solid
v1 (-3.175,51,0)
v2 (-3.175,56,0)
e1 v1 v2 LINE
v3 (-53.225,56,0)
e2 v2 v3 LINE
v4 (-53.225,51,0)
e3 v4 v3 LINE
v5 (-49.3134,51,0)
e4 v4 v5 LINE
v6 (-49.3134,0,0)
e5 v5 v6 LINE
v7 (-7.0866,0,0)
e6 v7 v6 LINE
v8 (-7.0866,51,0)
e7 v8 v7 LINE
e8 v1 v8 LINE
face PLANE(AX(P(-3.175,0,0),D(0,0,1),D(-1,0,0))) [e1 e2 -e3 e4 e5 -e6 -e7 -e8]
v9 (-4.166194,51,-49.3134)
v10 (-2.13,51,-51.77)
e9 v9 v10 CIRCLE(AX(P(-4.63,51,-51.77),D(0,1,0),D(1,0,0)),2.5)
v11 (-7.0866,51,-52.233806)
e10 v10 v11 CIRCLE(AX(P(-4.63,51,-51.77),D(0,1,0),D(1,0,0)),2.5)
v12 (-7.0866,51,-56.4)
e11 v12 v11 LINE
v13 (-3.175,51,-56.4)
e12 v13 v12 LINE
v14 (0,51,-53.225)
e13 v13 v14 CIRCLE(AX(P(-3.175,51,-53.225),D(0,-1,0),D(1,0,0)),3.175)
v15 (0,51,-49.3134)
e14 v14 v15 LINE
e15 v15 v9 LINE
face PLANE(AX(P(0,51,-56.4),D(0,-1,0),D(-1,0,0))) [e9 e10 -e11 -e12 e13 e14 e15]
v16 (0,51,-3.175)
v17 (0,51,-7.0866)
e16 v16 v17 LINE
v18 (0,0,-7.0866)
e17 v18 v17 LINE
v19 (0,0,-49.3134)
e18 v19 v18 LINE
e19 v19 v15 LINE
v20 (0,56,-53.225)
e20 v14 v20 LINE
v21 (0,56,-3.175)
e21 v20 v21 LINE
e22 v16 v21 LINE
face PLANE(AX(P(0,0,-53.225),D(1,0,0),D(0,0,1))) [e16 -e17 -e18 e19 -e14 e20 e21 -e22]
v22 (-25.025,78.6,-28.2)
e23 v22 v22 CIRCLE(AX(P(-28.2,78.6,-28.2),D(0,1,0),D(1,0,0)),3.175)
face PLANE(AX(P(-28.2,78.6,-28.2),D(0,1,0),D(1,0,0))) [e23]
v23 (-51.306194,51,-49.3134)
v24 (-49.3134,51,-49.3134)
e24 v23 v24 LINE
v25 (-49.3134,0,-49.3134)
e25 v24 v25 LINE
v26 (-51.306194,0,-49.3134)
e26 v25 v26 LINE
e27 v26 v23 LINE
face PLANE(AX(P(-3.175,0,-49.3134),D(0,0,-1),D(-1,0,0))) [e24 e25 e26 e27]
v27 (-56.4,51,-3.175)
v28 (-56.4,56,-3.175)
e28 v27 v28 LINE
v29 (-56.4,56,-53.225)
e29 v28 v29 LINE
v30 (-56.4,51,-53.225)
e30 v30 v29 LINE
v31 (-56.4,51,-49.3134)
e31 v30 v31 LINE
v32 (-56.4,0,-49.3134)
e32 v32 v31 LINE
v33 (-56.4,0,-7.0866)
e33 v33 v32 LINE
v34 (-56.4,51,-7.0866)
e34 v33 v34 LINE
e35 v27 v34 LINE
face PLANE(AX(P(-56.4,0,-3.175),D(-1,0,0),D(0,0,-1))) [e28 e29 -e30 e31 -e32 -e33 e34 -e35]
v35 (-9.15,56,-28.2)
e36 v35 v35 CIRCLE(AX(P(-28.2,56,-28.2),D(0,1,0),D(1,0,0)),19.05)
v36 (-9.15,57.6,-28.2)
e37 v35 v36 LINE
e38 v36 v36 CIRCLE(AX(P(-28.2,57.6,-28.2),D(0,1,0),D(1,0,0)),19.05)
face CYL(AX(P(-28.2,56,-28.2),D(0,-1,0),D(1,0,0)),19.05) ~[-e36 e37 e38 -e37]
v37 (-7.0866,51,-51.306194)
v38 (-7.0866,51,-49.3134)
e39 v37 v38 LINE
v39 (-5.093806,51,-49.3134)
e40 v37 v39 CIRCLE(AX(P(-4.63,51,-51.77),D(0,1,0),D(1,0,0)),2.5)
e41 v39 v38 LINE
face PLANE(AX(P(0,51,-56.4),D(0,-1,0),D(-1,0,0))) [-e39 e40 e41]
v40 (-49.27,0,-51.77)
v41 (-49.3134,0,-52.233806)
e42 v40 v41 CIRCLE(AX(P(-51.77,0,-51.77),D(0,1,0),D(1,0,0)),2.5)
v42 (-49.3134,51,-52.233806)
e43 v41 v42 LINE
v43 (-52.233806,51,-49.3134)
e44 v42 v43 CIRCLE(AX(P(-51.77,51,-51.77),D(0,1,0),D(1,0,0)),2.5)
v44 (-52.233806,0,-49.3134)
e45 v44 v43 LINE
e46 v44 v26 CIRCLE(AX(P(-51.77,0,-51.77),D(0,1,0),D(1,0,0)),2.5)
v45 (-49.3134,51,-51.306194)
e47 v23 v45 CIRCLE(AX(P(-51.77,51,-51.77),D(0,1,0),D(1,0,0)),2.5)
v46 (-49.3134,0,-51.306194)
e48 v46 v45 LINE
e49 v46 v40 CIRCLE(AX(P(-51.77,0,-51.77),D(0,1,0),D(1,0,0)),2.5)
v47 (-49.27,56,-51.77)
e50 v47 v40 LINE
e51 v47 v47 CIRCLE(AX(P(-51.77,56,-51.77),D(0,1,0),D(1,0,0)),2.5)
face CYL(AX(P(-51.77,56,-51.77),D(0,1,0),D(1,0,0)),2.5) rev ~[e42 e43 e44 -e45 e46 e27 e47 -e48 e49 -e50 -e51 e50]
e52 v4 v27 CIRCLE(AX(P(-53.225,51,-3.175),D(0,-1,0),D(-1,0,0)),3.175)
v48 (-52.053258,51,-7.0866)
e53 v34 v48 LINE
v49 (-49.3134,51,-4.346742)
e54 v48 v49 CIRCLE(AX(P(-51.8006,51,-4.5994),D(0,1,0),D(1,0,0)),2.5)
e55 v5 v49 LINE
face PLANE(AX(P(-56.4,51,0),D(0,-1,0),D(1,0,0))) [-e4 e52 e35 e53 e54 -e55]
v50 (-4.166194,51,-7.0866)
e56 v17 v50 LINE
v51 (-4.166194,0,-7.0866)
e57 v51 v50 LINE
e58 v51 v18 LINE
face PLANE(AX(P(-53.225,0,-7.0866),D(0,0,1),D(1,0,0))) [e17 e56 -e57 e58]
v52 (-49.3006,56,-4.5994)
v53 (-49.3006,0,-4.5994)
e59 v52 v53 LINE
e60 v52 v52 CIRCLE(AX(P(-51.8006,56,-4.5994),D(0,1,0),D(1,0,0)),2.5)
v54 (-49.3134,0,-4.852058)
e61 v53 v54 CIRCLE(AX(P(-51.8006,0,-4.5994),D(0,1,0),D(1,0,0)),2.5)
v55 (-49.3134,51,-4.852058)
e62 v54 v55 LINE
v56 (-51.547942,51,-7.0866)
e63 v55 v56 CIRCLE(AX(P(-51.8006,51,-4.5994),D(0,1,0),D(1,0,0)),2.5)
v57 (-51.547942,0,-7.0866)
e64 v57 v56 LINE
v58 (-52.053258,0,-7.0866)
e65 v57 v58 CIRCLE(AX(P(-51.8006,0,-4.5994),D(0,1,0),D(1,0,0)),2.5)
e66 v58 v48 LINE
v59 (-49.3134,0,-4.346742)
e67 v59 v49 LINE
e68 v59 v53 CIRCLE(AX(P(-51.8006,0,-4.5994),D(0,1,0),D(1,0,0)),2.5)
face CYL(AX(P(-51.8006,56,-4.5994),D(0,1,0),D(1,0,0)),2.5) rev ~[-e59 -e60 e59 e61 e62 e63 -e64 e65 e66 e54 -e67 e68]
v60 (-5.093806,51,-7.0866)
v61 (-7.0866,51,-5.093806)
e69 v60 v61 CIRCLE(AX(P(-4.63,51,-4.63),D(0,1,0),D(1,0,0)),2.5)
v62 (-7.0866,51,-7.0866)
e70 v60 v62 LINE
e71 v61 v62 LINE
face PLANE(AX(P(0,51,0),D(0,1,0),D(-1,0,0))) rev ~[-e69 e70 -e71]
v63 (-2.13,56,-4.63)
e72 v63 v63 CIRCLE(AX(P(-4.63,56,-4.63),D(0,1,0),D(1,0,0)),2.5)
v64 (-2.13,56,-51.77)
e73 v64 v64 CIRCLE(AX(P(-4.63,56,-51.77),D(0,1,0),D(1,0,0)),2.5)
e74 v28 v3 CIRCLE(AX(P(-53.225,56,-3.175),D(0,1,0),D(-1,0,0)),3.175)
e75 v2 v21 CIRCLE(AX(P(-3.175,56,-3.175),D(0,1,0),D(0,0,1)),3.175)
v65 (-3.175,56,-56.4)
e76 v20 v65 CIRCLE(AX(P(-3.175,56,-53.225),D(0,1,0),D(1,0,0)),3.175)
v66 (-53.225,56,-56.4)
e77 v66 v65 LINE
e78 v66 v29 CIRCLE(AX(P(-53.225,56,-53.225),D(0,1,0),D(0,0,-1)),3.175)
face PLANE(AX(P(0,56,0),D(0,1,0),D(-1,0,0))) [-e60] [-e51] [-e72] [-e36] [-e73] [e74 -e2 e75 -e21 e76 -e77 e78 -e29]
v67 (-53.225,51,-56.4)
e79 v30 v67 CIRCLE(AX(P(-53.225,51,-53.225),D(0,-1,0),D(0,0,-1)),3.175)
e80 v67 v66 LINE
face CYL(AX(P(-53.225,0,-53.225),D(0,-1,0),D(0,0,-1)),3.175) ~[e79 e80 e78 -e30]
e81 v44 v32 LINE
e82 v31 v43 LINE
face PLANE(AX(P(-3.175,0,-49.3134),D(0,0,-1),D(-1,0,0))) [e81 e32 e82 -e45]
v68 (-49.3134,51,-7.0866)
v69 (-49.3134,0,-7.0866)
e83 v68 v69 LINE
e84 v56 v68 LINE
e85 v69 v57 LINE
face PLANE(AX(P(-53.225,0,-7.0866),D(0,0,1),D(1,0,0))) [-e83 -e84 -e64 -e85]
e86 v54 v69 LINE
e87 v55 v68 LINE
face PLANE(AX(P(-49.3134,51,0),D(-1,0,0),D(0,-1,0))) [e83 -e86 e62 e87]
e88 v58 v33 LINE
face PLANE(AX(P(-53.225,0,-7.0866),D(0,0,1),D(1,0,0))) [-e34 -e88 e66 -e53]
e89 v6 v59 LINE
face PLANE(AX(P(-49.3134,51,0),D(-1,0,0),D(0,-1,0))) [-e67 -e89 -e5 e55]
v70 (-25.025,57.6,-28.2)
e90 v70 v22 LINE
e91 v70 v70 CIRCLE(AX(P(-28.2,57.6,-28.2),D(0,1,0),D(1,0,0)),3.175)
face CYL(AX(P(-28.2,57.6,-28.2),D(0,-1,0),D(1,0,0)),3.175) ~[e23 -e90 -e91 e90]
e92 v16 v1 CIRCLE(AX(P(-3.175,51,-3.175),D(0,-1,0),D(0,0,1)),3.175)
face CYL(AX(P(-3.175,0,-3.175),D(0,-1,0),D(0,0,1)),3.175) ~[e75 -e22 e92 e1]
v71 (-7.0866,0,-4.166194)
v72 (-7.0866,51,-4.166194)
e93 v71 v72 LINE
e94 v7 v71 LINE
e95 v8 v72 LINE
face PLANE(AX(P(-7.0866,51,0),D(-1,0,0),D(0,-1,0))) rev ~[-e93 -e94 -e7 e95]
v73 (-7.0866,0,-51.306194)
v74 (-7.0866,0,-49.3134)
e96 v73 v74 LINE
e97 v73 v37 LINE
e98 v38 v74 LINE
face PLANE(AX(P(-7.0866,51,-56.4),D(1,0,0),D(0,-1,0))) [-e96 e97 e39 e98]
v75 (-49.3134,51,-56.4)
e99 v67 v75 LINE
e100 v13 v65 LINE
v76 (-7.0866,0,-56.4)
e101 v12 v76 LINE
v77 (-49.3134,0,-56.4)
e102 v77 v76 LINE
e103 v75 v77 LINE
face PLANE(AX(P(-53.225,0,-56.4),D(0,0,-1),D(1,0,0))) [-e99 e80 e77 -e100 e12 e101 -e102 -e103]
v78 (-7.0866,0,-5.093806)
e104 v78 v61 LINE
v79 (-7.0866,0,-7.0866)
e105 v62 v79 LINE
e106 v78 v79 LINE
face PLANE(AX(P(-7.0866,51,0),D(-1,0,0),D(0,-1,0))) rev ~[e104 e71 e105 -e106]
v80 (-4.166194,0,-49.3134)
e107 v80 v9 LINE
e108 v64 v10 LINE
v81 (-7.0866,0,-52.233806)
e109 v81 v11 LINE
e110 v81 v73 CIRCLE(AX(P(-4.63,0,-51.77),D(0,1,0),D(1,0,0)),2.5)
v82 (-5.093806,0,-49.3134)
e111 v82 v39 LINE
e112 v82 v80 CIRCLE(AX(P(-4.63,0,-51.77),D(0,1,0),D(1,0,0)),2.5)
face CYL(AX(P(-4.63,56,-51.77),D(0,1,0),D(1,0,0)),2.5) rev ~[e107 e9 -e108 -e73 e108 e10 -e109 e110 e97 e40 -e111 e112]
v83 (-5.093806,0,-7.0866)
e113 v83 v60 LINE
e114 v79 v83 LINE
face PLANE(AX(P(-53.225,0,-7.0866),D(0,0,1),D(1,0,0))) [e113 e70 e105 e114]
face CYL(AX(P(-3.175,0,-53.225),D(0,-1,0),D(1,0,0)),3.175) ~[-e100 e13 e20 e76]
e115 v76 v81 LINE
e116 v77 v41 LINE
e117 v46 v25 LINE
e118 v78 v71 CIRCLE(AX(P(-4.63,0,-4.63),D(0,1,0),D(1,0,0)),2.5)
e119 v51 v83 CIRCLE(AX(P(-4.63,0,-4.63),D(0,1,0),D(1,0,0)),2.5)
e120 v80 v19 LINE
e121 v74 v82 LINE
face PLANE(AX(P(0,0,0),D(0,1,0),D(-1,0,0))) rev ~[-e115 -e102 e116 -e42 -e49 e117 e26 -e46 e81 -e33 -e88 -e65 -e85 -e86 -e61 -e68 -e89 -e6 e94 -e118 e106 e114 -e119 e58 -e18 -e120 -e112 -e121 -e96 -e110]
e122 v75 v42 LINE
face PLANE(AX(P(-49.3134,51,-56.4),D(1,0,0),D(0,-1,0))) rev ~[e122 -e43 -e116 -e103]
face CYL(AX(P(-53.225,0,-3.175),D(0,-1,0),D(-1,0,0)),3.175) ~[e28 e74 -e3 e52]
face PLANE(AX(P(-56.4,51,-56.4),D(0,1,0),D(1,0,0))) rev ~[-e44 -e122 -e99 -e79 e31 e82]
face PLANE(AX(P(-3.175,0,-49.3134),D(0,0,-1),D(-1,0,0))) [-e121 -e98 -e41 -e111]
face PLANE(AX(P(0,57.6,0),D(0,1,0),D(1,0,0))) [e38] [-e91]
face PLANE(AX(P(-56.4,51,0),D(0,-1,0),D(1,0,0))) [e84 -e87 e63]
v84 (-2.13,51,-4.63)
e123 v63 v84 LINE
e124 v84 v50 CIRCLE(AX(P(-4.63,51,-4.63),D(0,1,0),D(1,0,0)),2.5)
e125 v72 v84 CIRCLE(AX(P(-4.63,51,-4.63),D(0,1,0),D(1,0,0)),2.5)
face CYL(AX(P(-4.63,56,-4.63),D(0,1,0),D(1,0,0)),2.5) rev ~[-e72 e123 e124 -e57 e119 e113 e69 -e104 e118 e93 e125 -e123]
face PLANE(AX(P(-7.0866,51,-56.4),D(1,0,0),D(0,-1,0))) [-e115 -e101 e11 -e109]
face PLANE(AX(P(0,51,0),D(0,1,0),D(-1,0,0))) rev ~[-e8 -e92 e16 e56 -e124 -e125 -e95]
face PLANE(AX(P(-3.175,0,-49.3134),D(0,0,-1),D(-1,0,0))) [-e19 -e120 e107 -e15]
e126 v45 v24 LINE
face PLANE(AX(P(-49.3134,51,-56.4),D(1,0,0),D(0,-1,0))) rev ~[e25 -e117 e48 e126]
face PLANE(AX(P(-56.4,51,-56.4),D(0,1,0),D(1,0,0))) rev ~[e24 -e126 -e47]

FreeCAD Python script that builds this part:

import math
import FreeCAD as App
import Part
import Sketcher
from FreeCAD import Vector
Q = App.Units.Quantity


def add_polygon(sketch, points):
    """Adds a closed chain of lines whose ends are joined by coincident constraints."""
    first, n = sketch.GeometryCount, len(points)
    for a, b in zip(points, points[1:] + points[:1]):
        sketch.addGeometry(Part.LineSegment(App.Vector(*a, 0), App.Vector(*b, 0)), False)
    for i in range(n):
        sketch.addConstraint(Sketcher.Constraint("Coincident", first + i, 2, first + (i + 1) % n, 1))

doc = App.newDocument("Part")
body = doc.addObject("PartDesign::Body", "Body")

# Sketch on XZ plane
sketch1 = doc.addObject("Sketcher::SketchObject", "Sketch")
body.addObject(sketch1)
sketch1.AttachmentSupport = (doc.XZ_Plane, [""])
sketch1.MapMode = "FlatFace"
sketch1.addGeometry([
    Part.LineSegment(Vector(-53.225, 0, 0), Vector(-3.175, 0, 0)),  # 0
    Part.ArcOfCircle(Part.Circle(Vector(-3.175, -3.175, 0), Vector(0, 0, 1), 3.175), math.radians(0), math.radians(90)),  # 1
    Part.LineSegment(Vector(0, -3.175, 0), Vector(0, -53.225, 0)),  # 2
    Part.ArcOfCircle(Part.Circle(Vector(-3.175, -53.225, 0), Vector(0, 0, 1), 3.175), math.radians(-90), math.radians(0)),  # 3
    Part.LineSegment(Vector(-3.175, -56.4, 0), Vector(-53.225, -56.4, 0)),  # 4
    Part.ArcOfCircle(Part.Circle(Vector(-53.225, -53.225, 0), Vector(0, 0, 1), 3.175), math.radians(180), math.radians(270)),  # 5
    Part.LineSegment(Vector(-56.4, -53.225, 0), Vector(-56.4, -3.175, 0)),  # 6
    Part.ArcOfCircle(Part.Circle(Vector(-53.225, -3.175, 0), Vector(0, 0, 1), 3.175), math.radians(90), math.radians(180)),  # 7
], False)
sketch1.addConstraint([
    Sketcher.Constraint("Tangent", 0, 2, 1, 2),
    Sketcher.Constraint("Tangent", 1, 1, 2, 1),
    Sketcher.Constraint("Tangent", 2, 2, 3, 2),
    Sketcher.Constraint("Tangent", 3, 1, 4, 1),
    Sketcher.Constraint("Tangent", 4, 2, 5, 2),
    Sketcher.Constraint("Tangent", 5, 1, 6, 1),
    Sketcher.Constraint("Tangent", 6, 2, 7, 2),
    Sketcher.Constraint("Tangent", 7, 1, 0, 1),
    Sketcher.Constraint("Horizontal", 0),
    Sketcher.Constraint("Vertical", 2),
    Sketcher.Constraint("Horizontal", 4),
    Sketcher.Constraint("Vertical", 6),
    Sketcher.Constraint("Equal", 1, 3),
    Sketcher.Constraint("Equal", 3, 5),
    Sketcher.Constraint("Equal", 5, 7),
    Sketcher.Constraint("PointOnObject", 0, 2, -1),
    Sketcher.Constraint("PointOnObject", 1, 1, -2),
    Sketcher.Constraint("Equal", 4, 2),
    Sketcher.Constraint("Radius", 1, Q("3.175 mm")),
    Sketcher.Constraint("DistanceY", 3, 1, -1, 1, Q("56.4 mm")),
])
pad1 = doc.addObject("PartDesign::Pad", "Pad")
body.addObject(pad1)
pad1.Profile = sketch1
pad1.Length = 56
pad1.Reversed = True

# Sketch on XZ plane
sketch2 = doc.addObject("Sketcher::SketchObject", "Sketch001")
body.addObject(sketch2)
sketch2.AttachmentSupport = (doc.XZ_Plane, [""])
sketch2.MapMode = "FlatFace"
sketch2.AttachmentOffset = App.Placement(Vector(0, 0, -56), App.Rotation())
sketch2.addGeometry(Part.Circle(Vector(-28.2, -28.2, 0), Vector(0, 0, 1), 19.05), False)
sketch2.addConstraint([
    Sketcher.Constraint("Diameter", 0, Q("38.1 mm")),
    Sketcher.Constraint("DistanceX", 0, 3, -1, 1, Q("28.2 mm")),
    Sketcher.Constraint("DistanceY", 0, 3, -1, 1, Q("28.2 mm")),
])
pad2 = doc.addObject("PartDesign::Pad", "Pad001")
body.addObject(pad2)
pad2.Profile = sketch2
pad2.Length = 1.6
pad2.Reversed = True

# Sketch on XZ plane
sketch3 = doc.addObject("Sketcher::SketchObject", "Sketch002")
body.addObject(sketch3)
sketch3.AttachmentSupport = (doc.XZ_Plane, [""])
sketch3.MapMode = "FlatFace"
sketch3.AttachmentOffset = App.Placement(Vector(0, 0, -57.6), App.Rotation())
sketch3.addGeometry(Part.Circle(Vector(-28.2, -28.2, 0), Vector(0, 0, 1), 3.175), False)
sketch3.addConstraint([
    Sketcher.Constraint("Diameter", 0, Q("6.35 mm")),
    Sketcher.Constraint("DistanceX", 0, 3, -1, 1, Q("28.2 mm")),
    Sketcher.Constraint("DistanceY", 0, 3, -1, 1, Q("28.2 mm")),
])
pad3 = doc.addObject("PartDesign::Pad", "Pad002")
body.addObject(pad3)
pad3.Profile = sketch3
pad3.Length = 21
pad3.Reversed = True

# Sketch on XZ plane
sketch4 = doc.addObject("Sketcher::SketchObject", "Sketch003")
body.addObject(sketch4)
sketch4.AttachmentSupport = (doc.XZ_Plane, [""])
sketch4.MapMode = "FlatFace"
sketch4.AttachmentOffset = App.Placement(Vector(0, 0, -56), App.Rotation())
sketch4.addGeometry([
    Part.Circle(Vector(-51.8006, -4.5994, 0), Vector(0, 0, 1), 2.5),
    Part.Circle(Vector(-51.77, -51.77, 0), Vector(0, 0, 1), 2.5),
    Part.Circle(Vector(-4.63, -51.77, 0), Vector(0, 0, 1), 2.5),
    Part.Circle(Vector(-4.63, -4.63, 0), Vector(0, 0, 1), 2.5),
], False)
sketch4.addConstraint([
    Sketcher.Constraint("Equal", 0, 1),
    Sketcher.Constraint("Equal", 1, 2),
    Sketcher.Constraint("Equal", 2, 3),
    Sketcher.Constraint("Horizontal", 1, 3, 2, 3),
    Sketcher.Constraint("Vertical", 2, 3, 3, 3),
    Sketcher.Constraint("Diameter", 0, Q("5 mm")),
    Sketcher.Constraint("DistanceX", 1, 3, 2, 3, Q("47.14 mm")),
    Sketcher.Constraint("DistanceY", 2, 3, 3, 3, Q("47.14 mm")),
    Sketcher.Constraint("DistanceX", 1, 3, -1, 1, Q("51.77 mm")),
    Sketcher.Constraint("DistanceY", 1, 3, -1, 1, Q("51.77 mm")),
    Sketcher.Constraint("DistanceX", 0, 3, -1, 1, Q("51.8006 mm")),
    Sketcher.Constraint("DistanceY", 0, 3, -1, 1, Q("4.5994 mm")),
])
pocket1 = doc.addObject("PartDesign::Pocket", "Pocket")
body.addObject(pocket1)
pocket1.Profile = sketch4
pocket1.Type = "ThroughAll"
pocket1.Reversed = True

# Sketch on XY plane
sketch5 = doc.addObject("Sketcher::SketchObject", "Sketch004")
body.addObject(sketch5)
sketch5.AttachmentSupport = (doc.XY_Plane, [""])
sketch5.MapMode = "FlatFace"
add_polygon(sketch5, [(-49.3134, 51), (-56.4, 51), (-56.4, 0), (-49.3134, 0)])  # lines 0-3
add_polygon(sketch5, [(0, 0), (0, 51), (-7.0866, 51), (-7.0866, 0)])  # lines 4-7
sketch5.addConstraint([
    Sketcher.Constraint("Horizontal", 0),
    Sketcher.Constraint("Vertical", 1),
    Sketcher.Constraint("Horizontal", 2),
    Sketcher.Constraint("Vertical", 3),
    Sketcher.Constraint("Vertical", 4),
    Sketcher.Constraint("Horizontal", 5),
    Sketcher.Constraint("Vertical", 6),
    Sketcher.Constraint("Horizontal", 7),
    Sketcher.Constraint("Coincident", 7, 2, -1, 1),
    Sketcher.Constraint("PointOnObject", 1, 2, -1),
    Sketcher.Constraint("Horizontal", 3, 2, 4, 2),
    Sketcher.Constraint("Equal", 2, 5),
    Sketcher.Constraint("DistanceY", 1, 2, 1, 1, Q("51 mm")),
    Sketcher.Constraint("DistanceX", 0, 2, 0, 1, Q("7.0866 mm")),
    Sketcher.Constraint("DistanceX", 0, 2, -1, 1, Q("56.4 mm")),
])
pocket2 = doc.addObject("PartDesign::Pocket", "Pocket001")
body.addObject(pocket2)
pocket2.Profile = sketch5
pocket2.Length = 7.0866

# Sketch on XY plane
sketch6 = doc.addObject("Sketcher::SketchObject", "Sketch005")
body.addObject(sketch6)
sketch6.AttachmentSupport = (doc.XY_Plane, [""])
sketch6.MapMode = "FlatFace"
sketch6.AttachmentOffset = App.Placement(Vector(0, 0, -56.4), App.Rotation())
add_polygon(sketch6, [(-7.0866, 51), (0, 51), (0, 0), (-7.0866, 0)])  # lines 0-3
add_polygon(sketch6, [(-56.4, 0), (-56.4, 51), (-49.3134, 51), (-49.3134, 0)])  # lines 4-7
sketch6.addConstraint([
    Sketcher.Constraint("Horizontal", 0),
    Sketcher.Constraint("Vertical", 1),
    Sketcher.Constraint("Horizontal", 2),
    Sketcher.Constraint("Vertical", 3),
    Sketcher.Constraint("Vertical", 4),
    Sketcher.Constraint("Horizontal", 5),
    Sketcher.Constraint("Vertical", 6),
    Sketcher.Constraint("Horizontal", 7),
    Sketcher.Constraint("Coincident", 1, 2, -1, 1),
    Sketcher.Constraint("PointOnObject", 6, 2, -1),
    Sketcher.Constraint("Horizontal", 3, 2, 4, 2),
    Sketcher.Constraint("Equal", 2, 5),
    Sketcher.Constraint("DistanceY", 1, 2, 1, 1, Q("51 mm")),
    Sketcher.Constraint("DistanceX", 0, 1, 0, 2, Q("7.0866 mm")),
    Sketcher.Constraint("DistanceX", 4, 2, -1, 1, Q("56.4 mm")),
])
pocket3 = doc.addObject("PartDesign::Pocket", "Pocket002")
body.addObject(pocket3)
pocket3.Profile = sketch6
pocket3.Length = 7.0866
pocket3.Reversed = True

doc.recompute()
